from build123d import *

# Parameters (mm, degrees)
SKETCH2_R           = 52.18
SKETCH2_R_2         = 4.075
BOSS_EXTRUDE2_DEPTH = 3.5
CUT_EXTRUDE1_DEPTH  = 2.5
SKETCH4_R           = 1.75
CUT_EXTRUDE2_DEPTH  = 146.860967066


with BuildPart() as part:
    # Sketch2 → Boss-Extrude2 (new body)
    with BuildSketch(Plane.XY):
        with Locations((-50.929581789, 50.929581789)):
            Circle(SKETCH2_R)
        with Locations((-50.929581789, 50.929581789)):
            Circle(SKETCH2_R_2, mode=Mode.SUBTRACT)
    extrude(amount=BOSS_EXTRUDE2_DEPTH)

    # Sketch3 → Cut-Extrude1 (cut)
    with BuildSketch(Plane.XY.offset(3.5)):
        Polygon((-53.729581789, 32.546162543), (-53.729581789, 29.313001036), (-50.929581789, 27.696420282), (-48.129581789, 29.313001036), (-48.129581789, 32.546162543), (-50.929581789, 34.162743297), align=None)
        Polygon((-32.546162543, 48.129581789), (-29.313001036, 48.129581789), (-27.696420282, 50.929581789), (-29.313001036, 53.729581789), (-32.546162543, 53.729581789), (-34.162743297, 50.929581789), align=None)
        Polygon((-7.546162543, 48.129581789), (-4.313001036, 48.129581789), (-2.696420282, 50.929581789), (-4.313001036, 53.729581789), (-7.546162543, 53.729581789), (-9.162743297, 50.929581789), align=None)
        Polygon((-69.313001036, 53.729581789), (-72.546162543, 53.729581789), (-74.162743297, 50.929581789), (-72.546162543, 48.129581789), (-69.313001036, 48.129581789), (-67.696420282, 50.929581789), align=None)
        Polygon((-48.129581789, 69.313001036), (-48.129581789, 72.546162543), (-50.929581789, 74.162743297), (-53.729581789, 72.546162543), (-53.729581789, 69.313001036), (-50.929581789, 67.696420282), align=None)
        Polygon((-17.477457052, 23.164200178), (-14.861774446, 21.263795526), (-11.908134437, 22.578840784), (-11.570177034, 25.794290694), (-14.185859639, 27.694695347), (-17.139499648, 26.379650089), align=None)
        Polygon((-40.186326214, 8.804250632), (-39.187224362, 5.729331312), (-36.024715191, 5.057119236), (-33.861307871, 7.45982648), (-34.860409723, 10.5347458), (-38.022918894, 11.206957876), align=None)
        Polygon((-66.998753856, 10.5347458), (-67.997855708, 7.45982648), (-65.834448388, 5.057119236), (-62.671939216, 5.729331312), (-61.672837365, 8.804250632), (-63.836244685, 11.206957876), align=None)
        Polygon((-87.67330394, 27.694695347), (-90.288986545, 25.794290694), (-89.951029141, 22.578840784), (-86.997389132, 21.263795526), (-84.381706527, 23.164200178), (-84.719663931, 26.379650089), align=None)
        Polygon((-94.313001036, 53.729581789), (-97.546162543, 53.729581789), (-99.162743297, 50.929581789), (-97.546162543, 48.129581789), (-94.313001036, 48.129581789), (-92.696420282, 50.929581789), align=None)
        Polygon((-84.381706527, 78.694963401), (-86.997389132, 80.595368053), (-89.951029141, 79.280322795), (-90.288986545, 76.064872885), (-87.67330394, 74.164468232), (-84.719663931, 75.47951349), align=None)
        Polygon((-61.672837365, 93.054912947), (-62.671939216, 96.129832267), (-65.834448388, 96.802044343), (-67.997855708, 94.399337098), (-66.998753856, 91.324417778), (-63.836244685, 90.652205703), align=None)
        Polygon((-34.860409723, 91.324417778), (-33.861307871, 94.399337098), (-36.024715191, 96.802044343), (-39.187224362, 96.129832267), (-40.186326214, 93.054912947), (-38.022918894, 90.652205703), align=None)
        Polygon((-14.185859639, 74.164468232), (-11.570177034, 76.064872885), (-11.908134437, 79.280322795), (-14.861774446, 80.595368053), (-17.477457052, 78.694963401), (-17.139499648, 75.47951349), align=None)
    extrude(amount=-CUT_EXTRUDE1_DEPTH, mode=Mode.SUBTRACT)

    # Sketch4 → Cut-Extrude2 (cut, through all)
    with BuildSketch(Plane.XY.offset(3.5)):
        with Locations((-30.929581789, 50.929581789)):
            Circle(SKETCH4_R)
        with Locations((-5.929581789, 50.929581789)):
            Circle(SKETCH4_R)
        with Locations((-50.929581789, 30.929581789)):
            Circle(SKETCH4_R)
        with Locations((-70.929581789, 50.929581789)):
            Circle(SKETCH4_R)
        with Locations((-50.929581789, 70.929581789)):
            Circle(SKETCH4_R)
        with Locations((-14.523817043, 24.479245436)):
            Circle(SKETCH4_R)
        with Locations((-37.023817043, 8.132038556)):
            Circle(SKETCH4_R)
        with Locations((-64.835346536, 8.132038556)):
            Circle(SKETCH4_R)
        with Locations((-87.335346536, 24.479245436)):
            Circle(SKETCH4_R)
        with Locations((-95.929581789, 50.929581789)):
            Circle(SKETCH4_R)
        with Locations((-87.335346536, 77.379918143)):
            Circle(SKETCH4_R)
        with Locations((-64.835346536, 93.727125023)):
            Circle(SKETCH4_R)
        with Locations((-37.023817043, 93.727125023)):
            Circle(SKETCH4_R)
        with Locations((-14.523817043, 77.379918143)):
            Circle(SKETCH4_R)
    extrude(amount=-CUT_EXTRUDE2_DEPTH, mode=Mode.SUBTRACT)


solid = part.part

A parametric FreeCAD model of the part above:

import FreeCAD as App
import Part
import Sketcher

V = App.Vector
Q = App.Units.Quantity

doc = App.newDocument("Part")
body = doc.addObject("PartDesign::Body", "Body")

# Sketch on XY plane
sketch1 = body.newObject("Sketcher::SketchObject", "Sketch")
sketch1.AttachmentSupport = (doc.getObject("XY_Plane"), [""])
sketch1.MapMode = "FlatFace"
sketch1.addGeometry([
    Part.Circle(V(-50.9, 50.9, 0), V(0, 0, 1), 52.2),
    Part.Circle(V(-50.9, 50.9, 0), V(0, 0, 1), 4.1),
], False)
sketch1.addConstraint([
    Sketcher.Constraint("Coincident", 1, 3, 0, 3),
    Sketcher.Constraint("Diameter", 0, Q("104.36 mm")),
    Sketcher.Constraint("Diameter", 1, Q("8.15 mm")),
    Sketcher.Constraint("DistanceX", 0, 3, -1, 1, Q("50.929582 mm")),
    Sketcher.Constraint("DistanceY", -1, 1, 0, 3, Q("50.929582 mm")),
])
pad1 = body.newObject("PartDesign::Pad", "Pad")
pad1.Profile = sketch1
pad1.Length = 3.5

# Sketch on XY plane
sketch2 = body.newObject("Sketcher::SketchObject", "Sketch001")
sketch2.AttachmentSupport = (doc.getObject("XY_Plane"), [""])
sketch2.MapMode = "FlatFace"
sketch2.AttachmentOffset = App.Placement(V(0, 0, 3.5), App.Rotation())
sketch2.addGeometry([
    Part.LineSegment(V(-53.7, 32.5, 0), V(-53.7, 29.3, 0)),  # 0
    Part.LineSegment(V(-53.7, 29.3, 0), V(-50.9, 27.7, 0)),  # 1
    Part.LineSegment(V(-50.9, 27.7, 0), V(-48.1, 29.3, 0)),  # 2
    Part.LineSegment(V(-48.1, 29.3, 0), V(-48.1, 32.5, 0)),  # 3
    Part.LineSegment(V(-48.1, 32.5, 0), V(-50.9, 34.2, 0)),  # 4
    Part.LineSegment(V(-50.9, 34.2, 0), V(-53.7, 32.5, 0)),  # 5
    Part.LineSegment(V(-32.5, 48.1, 0), V(-29.3, 48.1, 0)),  # 6
    Part.LineSegment(V(-29.3, 48.1, 0), V(-27.7, 50.9, 0)),  # 7
    Part.LineSegment(V(-27.7, 50.9, 0), V(-29.3, 53.7, 0)),  # 8
    Part.LineSegment(V(-29.3, 53.7, 0), V(-32.5, 53.7, 0)),  # 9
    Part.LineSegment(V(-32.5, 53.7, 0), V(-34.2, 50.9, 0)),  # 10
    Part.LineSegment(V(-34.2, 50.9, 0), V(-32.5, 48.1, 0)),  # 11
    Part.LineSegment(V(-7.5, 48.1, 0), V(-4.3, 48.1, 0)),  # 12
    Part.LineSegment(V(-4.3, 48.1, 0), V(-2.7, 50.9, 0)),  # 13
    Part.LineSegment(V(-2.7, 50.9, 0), V(-4.3, 53.7, 0)),  # 14
    Part.LineSegment(V(-4.3, 53.7, 0), V(-7.5, 53.7, 0)),  # 15
    Part.LineSegment(V(-7.5, 53.7, 0), V(-9.2, 50.9, 0)),  # 16
    Part.LineSegment(V(-9.2, 50.9, 0), V(-7.5, 48.1, 0)),  # 17
    Part.LineSegment(V(-69.3, 53.7, 0), V(-72.5, 53.7, 0)),  # 18
    Part.LineSegment(V(-72.5, 53.7, 0), V(-74.2, 50.9, 0)),  # 19
    Part.LineSegment(V(-74.2, 50.9, 0), V(-72.5, 48.1, 0)),  # 20
    Part.LineSegment(V(-72.5, 48.1, 0), V(-69.3, 48.1, 0)),  # 21
    Part.LineSegment(V(-69.3, 48.1, 0), V(-67.7, 50.9, 0)),  # 22
    Part.LineSegment(V(-67.7, 50.9, 0), V(-69.3, 53.7, 0)),  # 23
    Part.LineSegment(V(-48.1, 69.3, 0), V(-48.1, 72.5, 0)),  # 24
    Part.LineSegment(V(-48.1, 72.5, 0), V(-50.9, 74.2, 0)),  # 25
    Part.LineSegment(V(-50.9, 74.2, 0), V(-53.7, 72.5, 0)),  # 26
    Part.LineSegment(V(-53.7, 72.5, 0), V(-53.7, 69.3, 0)),  # 27
    Part.LineSegment(V(-53.7, 69.3, 0), V(-50.9, 67.7, 0)),  # 28
    Part.LineSegment(V(-50.9, 67.7, 0), V(-48.1, 69.3, 0)),  # 29
    Part.LineSegment(V(-17.5, 23.2, 0), V(-14.9, 21.3, 0)),  # 30
    Part.LineSegment(V(-14.9, 21.3, 0), V(-11.9, 22.6, 0)),  # 31
    Part.LineSegment(V(-11.9, 22.6, 0), V(-11.6, 25.8, 0)),  # 32
    Part.LineSegment(V(-11.6, 25.8, 0), V(-14.2, 27.7, 0)),  # 33
    Part.LineSegment(V(-14.2, 27.7, 0), V(-17.1, 26.4, 0)),  # 34
    Part.LineSegment(V(-17.1, 26.4, 0), V(-17.5, 23.2, 0)),  # 35
    Part.LineSegment(V(-40.2, 8.8, 0), V(-39.2, 5.7, 0)),  # 36
    Part.LineSegment(V(-39.2, 5.7, 0), V(-36, 5.1, 0)),  # 37
    Part.LineSegment(V(-36, 5.1, 0), V(-33.9, 7.5, 0)),  # 38
    Part.LineSegment(V(-33.9, 7.5, 0), V(-34.9, 10.5, 0)),  # 39
    Part.LineSegment(V(-34.9, 10.5, 0), V(-38, 11.2, 0)),  # 40
    Part.LineSegment(V(-38, 11.2, 0), V(-40.2, 8.8, 0)),  # 41
    Part.LineSegment(V(-67, 10.5, 0), V(-68, 7.5, 0)),  # 42
    Part.LineSegment(V(-68, 7.5, 0), V(-65.8, 5.1, 0)),  # 43
    Part.LineSegment(V(-65.8, 5.1, 0), V(-62.7, 5.7, 0)),  # 44
    Part.LineSegment(V(-62.7, 5.7, 0), V(-61.7, 8.8, 0)),  # 45
    Part.LineSegment(V(-61.7, 8.8, 0), V(-63.8, 11.2, 0)),  # 46
    Part.LineSegment(V(-63.8, 11.2, 0), V(-67, 10.5, 0)),  # 47
    Part.LineSegment(V(-87.7, 27.7, 0), V(-90.3, 25.8, 0)),  # 48
    Part.LineSegment(V(-90.3, 25.8, 0), V(-90, 22.6, 0)),  # 49
    Part.LineSegment(V(-90, 22.6, 0), V(-87, 21.3, 0)),  # 50
    Part.LineSegment(V(-87, 21.3, 0), V(-84.4, 23.2, 0)),  # 51
    Part.LineSegment(V(-84.4, 23.2, 0), V(-84.7, 26.4, 0)),  # 52
    Part.LineSegment(V(-84.7, 26.4, 0), V(-87.7, 27.7, 0)),  # 53
    Part.LineSegment(V(-94.3, 53.7, 0), V(-97.5, 53.7, 0)),  # 54
    Part.LineSegment(V(-97.5, 53.7, 0), V(-99.2, 50.9, 0)),  # 55
    Part.LineSegment(V(-99.2, 50.9, 0), V(-97.5, 48.1, 0)),  # 56
    Part.LineSegment(V(-97.5, 48.1, 0), V(-94.3, 48.1, 0)),  # 57
    Part.LineSegment(V(-94.3, 48.1, 0), V(-92.7, 50.9, 0)),  # 58
    Part.LineSegment(V(-92.7, 50.9, 0), V(-94.3, 53.7, 0)),  # 59
    Part.LineSegment(V(-84.4, 78.7, 0), V(-87, 80.6, 0)),  # 60
    Part.LineSegment(V(-87, 80.6, 0), V(-90, 79.3, 0)),  # 61
    Part.LineSegment(V(-90, 79.3, 0), V(-90.3, 76.1, 0)),  # 62
    Part.LineSegment(V(-90.3, 76.1, 0), V(-87.7, 74.2, 0)),  # 63
    Part.LineSegment(V(-87.7, 74.2, 0), V(-84.7, 75.5, 0)),  # 64
    Part.LineSegment(V(-84.7, 75.5, 0), V(-84.4, 78.7, 0)),  # 65
    Part.LineSegment(V(-61.7, 93.1, 0), V(-62.7, 96.1, 0)),  # 66
    Part.LineSegment(V(-62.7, 96.1, 0), V(-65.8, 96.8, 0)),  # 67
    Part.LineSegment(V(-65.8, 96.8, 0), V(-68, 94.4, 0)),  # 68
    Part.LineSegment(V(-68, 94.4, 0), V(-67, 91.3, 0)),  # 69
    Part.LineSegment(V(-67, 91.3, 0), V(-63.8, 90.7, 0)),  # 70
    Part.LineSegment(V(-63.8, 90.7, 0), V(-61.7, 93.1, 0)),  # 71
    Part.LineSegment(V(-34.9, 91.3, 0), V(-33.9, 94.4, 0)),  # 72
    Part.LineSegment(V(-33.9, 94.4, 0), V(-36, 96.8, 0)),  # 73
    Part.LineSegment(V(-36, 96.8, 0), V(-39.2, 96.1, 0)),  # 74
    Part.LineSegment(V(-39.2, 96.1, 0), V(-40.2, 93.1, 0)),  # 75
    Part.LineSegment(V(-40.2, 93.1, 0), V(-38, 90.7, 0)),  # 76
    Part.LineSegment(V(-38, 90.7, 0), V(-34.9, 91.3, 0)),  # 77
    Part.LineSegment(V(-14.2, 74.2, 0), V(-11.6, 76.1, 0)),  # 78
    Part.LineSegment(V(-11.6, 76.1, 0), V(-11.9, 79.3, 0)),  # 79
    Part.LineSegment(V(-11.9, 79.3, 0), V(-14.9, 80.6, 0)),  # 80
    Part.LineSegment(V(-14.9, 80.6, 0), V(-17.5, 78.7, 0)),  # 81
    Part.LineSegment(V(-17.5, 78.7, 0), V(-17.1, 75.5, 0)),  # 82
    Part.LineSegment(V(-17.1, 75.5, 0), V(-14.2, 74.2, 0)),  # 83
], False)
sketch2.addConstraint([
    Sketcher.Constraint("Coincident", 0, 2, 1, 1),
    Sketcher.Constraint("Coincident", 1, 2, 2, 1),
    Sketcher.Constraint("Coincident", 2, 2, 3, 1),
    Sketcher.Constraint("Coincident", 3, 2, 4, 1),
    Sketcher.Constraint("Coincident", 4, 2, 5, 1),
    Sketcher.Constraint("Coincident", 5, 2, 0, 1),
    Sketcher.Constraint("Coincident", 6, 2, 7, 1),
    Sketcher.Constraint("Coincident", 7, 2, 8, 1),
    Sketcher.Constraint("Coincident", 8, 2, 9, 1),
    Sketcher.Constraint("Coincident", 9, 2, 10, 1),
    Sketcher.Constraint("Coincident", 10, 2, 11, 1),
    Sketcher.Constraint("Coincident", 11, 2, 6, 1),
    Sketcher.Constraint("Coincident", 12, 2, 13, 1),
    Sketcher.Constraint("Coincident", 13, 2, 14, 1),
    Sketcher.Constraint("Coincident", 14, 2, 15, 1),
    Sketcher.Constraint("Coincident", 15, 2, 16, 1),
    Sketcher.Constraint("Coincident", 16, 2, 17, 1),
    Sketcher.Constraint("Coincident", 17, 2, 12, 1),
    Sketcher.Constraint("Coincident", 18, 2, 19, 1),
    Sketcher.Constraint("Coincident", 19, 2, 20, 1),
    Sketcher.Constraint("Coincident", 20, 2, 21, 1),
    Sketcher.Constraint("Coincident", 21, 2, 22, 1),
    Sketcher.Constraint("Coincident", 22, 2, 23, 1),
    Sketcher.Constraint("Coincident", 23, 2, 18, 1),
    Sketcher.Constraint("Coincident", 24, 2, 25, 1),
    Sketcher.Constraint("Coincident", 25, 2, 26, 1),
    Sketcher.Constraint("Coincident", 26, 2, 27, 1),
    Sketcher.Constraint("Coincident", 27, 2, 28, 1),
    Sketcher.Constraint("Coincident", 28, 2, 29, 1),
    Sketcher.Constraint("Coincident", 29, 2, 24, 1),
    Sketcher.Constraint("Coincident", 30, 2, 31, 1),
    Sketcher.Constraint("Coincident", 31, 2, 32, 1),
    Sketcher.Constraint("Coincident", 32, 2, 33, 1),
    Sketcher.Constraint("Coincident", 33, 2, 34, 1),
    Sketcher.Constraint("Coincident", 34, 2, 35, 1),
    Sketcher.Constraint("Coincident", 35, 2, 30, 1),
    Sketcher.Constraint("Coincident", 36, 2, 37, 1),
    Sketcher.Constraint("Coincident", 37, 2, 38, 1),
    Sketcher.Constraint("Coincident", 38, 2, 39, 1),
    Sketcher.Constraint("Coincident", 39, 2, 40, 1),
    Sketcher.Constraint("Coincident", 40, 2, 41, 1),
    Sketcher.Constraint("Coincident", 41, 2, 36, 1),
    Sketcher.Constraint("Coincident", 42, 2, 43, 1),
    Sketcher.Constraint("Coincident", 43, 2, 44, 1),
    Sketcher.Constraint("Coincident", 44, 2, 45, 1),
    Sketcher.Constraint("Coincident", 45, 2, 46, 1),
    Sketcher.Constraint("Coincident", 46, 2, 47, 1),
    Sketcher.Constraint("Coincident", 47, 2, 42, 1),
    Sketcher.Constraint("Coincident", 48, 2, 49, 1),
    Sketcher.Constraint("Coincident", 49, 2, 50, 1),
    Sketcher.Constraint("Coincident", 50, 2, 51, 1),
    Sketcher.Constraint("Coincident", 51, 2, 52, 1),
    Sketcher.Constraint("Coincident", 52, 2, 53, 1),
    Sketcher.Constraint("Coincident", 53, 2, 48, 1),
    Sketcher.Constraint("Coincident", 54, 2, 55, 1),
    Sketcher.Constraint("Coincident", 55, 2, 56, 1),
    Sketcher.Constraint("Coincident", 56, 2, 57, 1),
    Sketcher.Constraint("Coincident", 57, 2, 58, 1),
    Sketcher.Constraint("Coincident", 58, 2, 59, 1),
    Sketcher.Constraint("Coincident", 59, 2, 54, 1),
    Sketcher.Constraint("Coincident", 60, 2, 61, 1),
    Sketcher.Constraint("Coincident", 61, 2, 62, 1),
    Sketcher.Constraint("Coincident", 62, 2, 63, 1),
    Sketcher.Constraint("Coincident", 63, 2, 64, 1),
    Sketcher.Constraint("Coincident", 64, 2, 65, 1),
    Sketcher.Constraint("Coincident", 65, 2, 60, 1),
    Sketcher.Constraint("Coincident", 66, 2, 67, 1),
    Sketcher.Constraint("Coincident", 67, 2, 68, 1),
    Sketcher.Constraint("Coincident", 68, 2, 69, 1),
    Sketcher.Constraint("Coincident", 69, 2, 70, 1),
    Sketcher.Constraint("Coincident", 70, 2, 71, 1),
    Sketcher.Constraint("Coincident", 71, 2, 66, 1),
    Sketcher.Constraint("Coincident", 72, 2, 73, 1),
    Sketcher.Constraint("Coincident", 73, 2, 74, 1),
    Sketcher.Constraint("Coincident", 74, 2, 75, 1),
    Sketcher.Constraint("Coincident", 75, 2, 76, 1),
    Sketcher.Constraint("Coincident", 76, 2, 77, 1),
    Sketcher.Constraint("Coincident", 77, 2, 72, 1),
    Sketcher.Constraint("Coincident", 78, 2, 79, 1),
    Sketcher.Constraint("Coincident", 79, 2, 80, 1),
    Sketcher.Constraint("Coincident", 80, 2, 81, 1),
    Sketcher.Constraint("Coincident", 81, 2, 82, 1),
    Sketcher.Constraint("Coincident", 82, 2, 83, 1),
    Sketcher.Constraint("Coincident", 83, 2, 78, 1),
    Sketcher.Constraint("Vertical", 0),
    Sketcher.Constraint("Vertical", 3),
    Sketcher.Constraint("Horizontal", 6),
    Sketcher.Constraint("Horizontal", 9),
    Sketcher.Constraint("Horizontal", 12),
    Sketcher.Constraint("Horizontal", 15),
    Sketcher.Constraint("Horizontal", 18),
    Sketcher.Constraint("Horizontal", 21),
    Sketcher.Constraint("Vertical", 24),
    Sketcher.Constraint("Vertical", 27),
    Sketcher.Constraint("Horizontal", 54),
    Sketcher.Constraint("Horizontal", 57),
    Sketcher.Constraint("Parallel", 1, 4),
    Sketcher.Constraint("Parallel", 2, 5),
    Sketcher.Constraint("Perpendicular", 4, 7),
    Sketcher.Constraint("Perpendicular", 5, 8),
    Sketcher.Constraint("Parallel", 7, 10),
    Sketcher.Constraint("Parallel", 8, 11),
    Sketcher.Constraint("Parallel", 10, 13),
    Sketcher.Constraint("Parallel", 11, 14),
    Sketcher.Constraint("Parallel", 13, 16),
    Sketcher.Constraint("Parallel", 14, 17),
    Sketcher.Constraint("Parallel", 16, 19),
    Sketcher.Constraint("Parallel", 17, 20),
    Sketcher.Constraint("Parallel", 19, 22),
    Sketcher.Constraint("Parallel", 20, 23),
    Sketcher.Constraint("Perpendicular", 22, 25),
    Sketcher.Constraint("Perpendicular", 23, 26),
    Sketcher.Constraint("Parallel", 25, 28),
    Sketcher.Constraint("Parallel", 26, 29),
    Sketcher.Constraint("Parallel", 30, 33),
    Sketcher.Constraint("Parallel", 31, 34),
    Sketcher.Constraint("Parallel", 32, 35),
    Sketcher.Constraint("Parallel", 36, 39),
    Sketcher.Constraint("Parallel", 37, 40),
    Sketcher.Constraint("Parallel", 38, 41),
    Sketcher.Constraint("Parallel", 42, 45),
    Sketcher.Constraint("Parallel", 43, 46),
    Sketcher.Constraint("Parallel", 44, 47),
    Sketcher.Constraint("Parallel", 48, 51),
    Sketcher.Constraint("Parallel", 49, 52),
    Sketcher.Constraint("Parallel", 50, 53),
    Sketcher.Constraint("Perpendicular", 28, 55),
    Sketcher.Constraint("Perpendicular", 29, 56),
    Sketcher.Constraint("Parallel", 55, 58),
    Sketcher.Constraint("Parallel", 56, 59),
    Sketcher.Constraint("Parallel", 33, 60),
    Sketcher.Constraint("Parallel", 34, 61),
    Sketcher.Constraint("Parallel", 35, 62),
    Sketcher.Constraint("Parallel", 60, 63),
    Sketcher.Constraint("Parallel", 61, 64),
    Sketcher.Constraint("Parallel", 62, 65),
    Sketcher.Constraint("Parallel", 39, 66),
    Sketcher.Constraint("Parallel", 40, 67),
    Sketcher.Constraint("Parallel", 41, 68),
    Sketcher.Constraint("Parallel", 66, 69),
    Sketcher.Constraint("Parallel", 67, 70),
    Sketcher.Constraint("Parallel", 68, 71),
    Sketcher.Constraint("Parallel", 45, 72),
    Sketcher.Constraint("Parallel", 46, 73),
    Sketcher.Constraint("Parallel", 47, 74),
    Sketcher.Constraint("Parallel", 72, 75),
    Sketcher.Constraint("Parallel", 73, 76),
    Sketcher.Constraint("Parallel", 74, 77),
    Sketcher.Constraint("Parallel", 51, 78),
    Sketcher.Constraint("Parallel", 52, 79),
    Sketcher.Constraint("Parallel", 53, 80),
    Sketcher.Constraint("Parallel", 78, 81),
    Sketcher.Constraint("Parallel", 79, 82),
    Sketcher.Constraint("Parallel", 80, 83),
    Sketcher.Constraint("Horizontal", 0, 2, 2, 2),
    Sketcher.Constraint("Horizontal", 3, 2, 5, 2),
    Sketcher.Constraint("Horizontal", 7, 2, 10, 2),
    Sketcher.Constraint("Horizontal", 11, 2, 12, 2),
    Sketcher.Constraint("Horizontal", 10, 2, 13, 2),
    Sketcher.Constraint("Horizontal", 9, 2, 14, 2),
    Sketcher.Constraint("Horizontal", 13, 2, 16, 2),
    Sketcher.Constraint("Horizontal", 15, 2, 18, 2),
    Sketcher.Constraint("Horizontal", 16, 2, 19, 2),
    Sketcher.Constraint("Horizontal", 17, 2, 20, 2),
    Sketcher.Constraint("Horizontal", 19, 2, 22, 2),
    Sketcher.Constraint("Horizontal", 24, 2, 26, 2),
    Sketcher.Constraint("Horizontal", 27, 2, 29, 2),
    Sketcher.Constraint("Horizontal", 38, 2, 42, 2),
    Sketcher.Constraint("Horizontal", 37, 2, 43, 2),
    Sketcher.Constraint("Horizontal", 36, 2, 44, 2),
    Sketcher.Constraint("Horizontal", 41, 2, 45, 2),
    Sketcher.Constraint("Horizontal", 40, 2, 46, 2),
    Sketcher.Constraint("Horizontal", 32, 2, 48, 2),
    Sketcher.Constraint("Horizontal", 31, 2, 49, 2),
    Sketcher.Constraint("Horizontal", 30, 2, 50, 2),
    Sketcher.Constraint("Horizontal", 35, 2, 51, 2),
    Sketcher.Constraint("Horizontal", 34, 2, 52, 2),
    Sketcher.Constraint("Horizontal", 23, 2, 54, 2),
    Sketcher.Constraint("Horizontal", 22, 2, 55, 2),
    Sketcher.Constraint("Horizontal", 21, 2, 56, 2),
    Sketcher.Constraint("Horizontal", 55, 2, 58, 2),
    Sketcher.Constraint("Horizontal", 68, 2, 72, 2),
    Sketcher.Constraint("Horizontal", 67, 2, 73, 2),
    Sketcher.Constraint("Horizontal", 66, 2, 74, 2),
    Sketcher.Constraint("Horizontal", 71, 2, 75, 2),
    Sketcher.Constraint("Horizontal", 70, 2, 76, 2),
    Sketcher.Constraint("Horizontal", 62, 2, 78, 2),
    Sketcher.Constraint("Horizontal", 61, 2, 79, 2),
    Sketcher.Constraint("Horizontal", 60, 2, 80, 2),
    Sketcher.Constraint("Horizontal", 65, 2, 81, 2),
    Sketcher.Constraint("Horizontal", 64, 2, 82, 2),
    Sketcher.Constraint("Vertical", 1, 2, 4, 2),
    Sketcher.Constraint("Vertical", 6, 2, 8, 2),
    Sketcher.Constraint("Vertical", 3, 2, 24, 2),
    Sketcher.Constraint("Vertical", 4, 2, 25, 2),
    Sketcher.Constraint("Vertical", 50, 2, 60, 2),
    Sketcher.Constraint("Vertical", 49, 2, 61, 2),
    Sketcher.Constraint("Vertical", 48, 2, 62, 2),
    Sketcher.Constraint("Vertical", 53, 2, 63, 2),
    Sketcher.Constraint("Vertical", 52, 2, 64, 2),
    Sketcher.Constraint("Vertical", 44, 2, 66, 2),
    Sketcher.Constraint("Vertical", 43, 2, 67, 2),
    Sketcher.Constraint("Vertical", 42, 2, 68, 2),
    Sketcher.Constraint("Vertical", 47, 2, 69, 2),
    Sketcher.Constraint("Vertical", 46, 2, 70, 2),
    Sketcher.Constraint("Vertical", 38, 2, 72, 2),
    Sketcher.Constraint("Vertical", 37, 2, 73, 2),
    Sketcher.Constraint("Vertical", 36, 2, 74, 2),
    Sketcher.Constraint("Vertical", 41, 2, 75, 2),
    Sketcher.Constraint("Vertical", 32, 2, 78, 2),
    Sketcher.Constraint("Vertical", 31, 2, 79, 2),
    Sketcher.Constraint("Vertical", 30, 2, 80, 2),
    Sketcher.Constraint("Vertical", 35, 2, 81, 2),
    Sketcher.Constraint("Equal", 9, 12),
    Sketcher.Constraint("Equal", 15, 18),
    Sketcher.Constraint("Equal", 21, 54),
    Sketcher.Constraint("Equal", 57, 0),
    Sketcher.Constraint("Equal", 3, 24),
    Sketcher.Constraint("Equal", 5, 7),
    Sketcher.Constraint("Equal", 29, 30),
    Sketcher.Constraint("Equal", 30, 31),
    Sketcher.Constraint("Equal", 31, 32),
    Sketcher.Constraint("Equal", 32, 33),
    Sketcher.Constraint("Equal", 35, 36),
    Sketcher.Constraint("Equal", 36, 37),
    Sketcher.Constraint("Equal", 37, 38),
    Sketcher.Constraint("Equal", 38, 39),
    Sketcher.Constraint("Angle", 1, Q("-30 deg")),
    Sketcher.Constraint("Angle", 30, Q("-36 deg")),
    Sketcher.Constraint("Angle", 31, Q("24 deg")),
    Sketcher.Constraint("Angle", 32, Q("84 deg")),
    Sketcher.Constraint("Angle", 36, Q("-72 deg")),
    Sketcher.Constraint("Angle", 37, Q("-12 deg")),
    Sketcher.Constraint("Angle", 38, Q("48 deg")),
    Sketcher.Constraint("DistanceY", -1, 1, 0, 2, Q("29.313001 mm")),
    Sketcher.Constraint("DistanceX", 6, 2, -1, 1, Q("29.313001 mm")),
    Sketcher.Constraint("DistanceX", 12, 2, -1, 1, Q("4.313001 mm")),
    Sketcher.Constraint("DistanceX", 21, 2, -1, 1, Q("69.313001 mm")),
    Sketcher.Constraint("DistanceY", -1, 1, 27, 2, Q("69.313001 mm")),
    Sketcher.Constraint("DistanceX", 57, 2, -1, 1, Q("94.313001 mm")),
    Sketcher.Constraint("DistanceX", 6, 1, 6, 2, Q("3.233162 mm")),
    Sketcher.Constraint("DistanceX", 34, 2, -1, 1, Q("17.1395 mm")),
    Sketcher.Constraint("DistanceY", -1, 1, 35, 2, Q("23.1642 mm")),
    Sketcher.Constraint("Distance", 1, Q("3.233162 mm")),
    Sketcher.Constraint("DistanceX", 0, 2, -1, 1, Q("53.729582 mm")),
    Sketcher.Constraint("DistanceY", -1, 1, 6, 2, Q("48.129582 mm")),
    Sketcher.Constraint("DistanceY", -1, 1, 36, 2, Q("5.729331 mm")),
    Sketcher.Constraint("DistanceX", 39, 2, -1, 1, Q("34.86041 mm")),
    Sketcher.Constraint("DistanceX", 43, 2, -1, 1, Q("65.834448 mm")),
    Sketcher.Constraint("DistanceX", 49, 2, -1, 1, Q("89.951029 mm")),
    Sketcher.Constraint("DistanceY", -1, 1, 60, 2, Q("80.595368 mm")),
    Sketcher.Constraint("DistanceY", -1, 1, 66, 2, Q("96.129832 mm")),
])
pocket1 = body.newObject("PartDesign::Pocket", "Pocket")
pocket1.Profile = sketch2
pocket1.Length = 2.5

# Sketch on XY plane
sketch3 = body.newObject("Sketcher::SketchObject", "Sketch002")
sketch3.AttachmentSupport = (doc.getObject("XY_Plane"), [""])
sketch3.MapMode = "FlatFace"
sketch3.AttachmentOffset = App.Placement(V(0, 0, 3.5), App.Rotation())
sketch3.addGeometry([
    Part.Circle(V(-30.9, 50.9, 0), V(0, 0, 1), 1.8),  # 0
    Part.Circle(V(-5.9, 50.9, 0), V(0, 0, 1), 1.8),  # 1
    Part.Circle(V(-50.9, 30.9, 0), V(0, 0, 1), 1.8),  # 2
    Part.Circle(V(-70.9, 50.9, 0), V(0, 0, 1), 1.8),  # 3
    Part.Circle(V(-50.9, 70.9, 0), V(0, 0, 1), 1.8),  # 4
    Part.Circle(V(-14.5, 24.5, 0), V(0, 0, 1), 1.8),  # 5
    Part.Circle(V(-37, 8.1, 0), V(0, 0, 1), 1.8),  # 6
    Part.Circle(V(-64.8, 8.1, 0), V(0, 0, 1), 1.8),  # 7
    Part.Circle(V(-87.3, 24.5, 0), V(0, 0, 1), 1.8),  # 8
    Part.Circle(V(-95.9, 50.9, 0), V(0, 0, 1), 1.8),  # 9
    Part.Circle(V(-87.3, 77.4, 0), V(0, 0, 1), 1.8),  # 10
    Part.Circle(V(-64.8, 93.7, 0), V(0, 0, 1), 1.8),  # 11
    Part.Circle(V(-37, 93.7, 0), V(0, 0, 1), 1.8),  # 12
    Part.Circle(V(-14.5, 77.4, 0), V(0, 0, 1), 1.8),  # 13
], False)
sketch3.addConstraint([
    Sketcher.Constraint("Equal", 0, 1),
    Sketcher.Constraint("Equal", 1, 2),
    Sketcher.Constraint("Equal", 2, 3),
    Sketcher.Constraint("Equal", 3, 4),
    Sketcher.Constraint("Equal", 4, 5),
    Sketcher.Constraint("Equal", 5, 6),
    Sketcher.Constraint("Equal", 6, 7),
    Sketcher.Constraint("Equal", 7, 8),
    Sketcher.Constraint("Equal", 8, 9),
    Sketcher.Constraint("Equal", 9, 10),
    Sketcher.Constraint("Equal", 10, 11),
    Sketcher.Constraint("Equal", 11, 12),
    Sketcher.Constraint("Equal", 12, 13),
    Sketcher.Constraint("Horizontal", 0, 3, 1, 3),
    Sketcher.Constraint("Horizontal", 1, 3, 3, 3),
    Sketcher.Constraint("Horizontal", 6, 3, 7, 3),
    Sketcher.Constraint("Horizontal", 5, 3, 8, 3),
    Sketcher.Constraint("Horizontal", 3, 3, 9, 3),
    Sketcher.Constraint("Horizontal", 11, 3, 12, 3),
    Sketcher.Constraint("Horizontal", 10, 3, 13, 3),
    Sketcher.Constraint("Vertical", 2, 3, 4, 3),
    Sketcher.Constraint("Vertical", 8, 3, 10, 3),
    Sketcher.Constraint("Vertical", 7, 3, 11, 3),
    Sketcher.Constraint("Vertical", 6, 3, 12, 3),
    Sketcher.Constraint("Vertical", 5, 3, 13, 3),
    Sketcher.Constraint("Diameter", 0, Q("3.5 mm")),
    Sketcher.Constraint("DistanceX", 0, 3, 1, 3, Q("25 mm")),
    Sketcher.Constraint("DistanceX", 2, 3, 0, 3, Q("20 mm")),
    Sketcher.Constraint("DistanceY", 2, 3, 0, 3, Q("20 mm")),
    Sketcher.Constraint("DistanceX", 3, 3, 2, 3, Q("20 mm")),
    Sketcher.Constraint("DistanceY", 0, 3, 4, 3, Q("20 mm")),
    Sketcher.Constraint("DistanceX", 9, 3, 3, 3, Q("25 mm")),
    Sketcher.Constraint("DistanceX", 6, 3, 5, 3, Q("22.5 mm")),
    Sketcher.Constraint("DistanceX", 8, 3, 7, 3, Q("22.5 mm")),
    Sketcher.Constraint("DistanceX", 0, 3, -1, 1, Q("30.929582 mm")),
    Sketcher.Constraint("DistanceY", -1, 1, 0, 3, Q("50.929582 mm")),
    Sketcher.Constraint("DistanceY", -1, 1, 6, 3, Q("8.132039 mm")),
    Sketcher.Constraint("DistanceY", -1, 1, 10, 3, Q("77.379918 mm")),
    Sketcher.Constraint("DistanceX", 7, 3, 6, 3, Q("27.811529 mm")),
    Sketcher.Constraint("DistanceX", 5, 3, -1, 1, Q("14.523817 mm")),
    Sketcher.Constraint("DistanceY", -1, 1, 5, 3, Q("24.479245 mm")),
    Sketcher.Constraint("DistanceY", -1, 1, 11, 3, Q("93.727125 mm")),
])
pocket2 = body.newObject("PartDesign::Pocket", "Pocket001")
pocket2.Profile = sketch3
pocket2.Type = "ThroughAll"

doc.recompute()
